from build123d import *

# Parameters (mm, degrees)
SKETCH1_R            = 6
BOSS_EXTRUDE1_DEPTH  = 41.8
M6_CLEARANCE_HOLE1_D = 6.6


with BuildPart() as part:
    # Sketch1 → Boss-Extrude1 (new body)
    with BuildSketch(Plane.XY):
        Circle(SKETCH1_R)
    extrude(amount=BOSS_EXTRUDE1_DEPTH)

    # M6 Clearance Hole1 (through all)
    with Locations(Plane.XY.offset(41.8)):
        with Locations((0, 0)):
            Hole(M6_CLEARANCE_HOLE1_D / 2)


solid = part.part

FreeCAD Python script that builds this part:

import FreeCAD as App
import Part
import Sketcher

V = App.Vector
Q = App.Units.Quantity

doc = App.newDocument("Part")
body = doc.addObject("PartDesign::Body", "Body")

# Sketch on XY plane
sketch1 = doc.addObject("Sketcher::SketchObject", "Sketch")
body.addObject(sketch1)
sketch1.AttachmentSupport = (doc.XY_Plane, [""])
sketch1.MapMode = "FlatFace"
sketch1.addGeometry(Part.Circle(V(0, 0, 0), V(0, 0, 1), 6), False)
sketch1.addConstraint([
    Sketcher.Constraint("Coincident", 0, 3, -1, 1),
    Sketcher.Constraint("Diameter", 0, Q("12 mm")),
])
pad1 = doc.addObject("PartDesign::Pad", "Pad")
body.addObject(pad1)
pad1.Profile = sketch1
pad1.Length = 41.8

# Sketch on XY plane
sketch2 = doc.addObject("Sketcher::SketchObject", "Sketch001")
body.addObject(sketch2)
sketch2.AttachmentSupport = (doc.XY_Plane, [""])
sketch2.MapMode = "FlatFace"
sketch2.AttachmentOffset = App.Placement(V(0, 0, 41.8), App.Rotation())
sketch2.addGeometry(Part.Circle(V(0, 0, 0), V(0, 0, 1), 3.3), False)
sketch2.addConstraint([
    Sketcher.Constraint("Coincident", 0, 3, -1, 1),
    Sketcher.Constraint("Diameter", 0, Q("6.6 mm")),
])
doc.recompute()
hole = doc.addObject("PartDesign::Hole", "Hole")
body.addObject(hole)
hole.Profile = sketch2
hole.ThreadType = "None"
hole.Diameter = 6.6
hole.DepthType = "ThroughAll"

doc.recompute()
